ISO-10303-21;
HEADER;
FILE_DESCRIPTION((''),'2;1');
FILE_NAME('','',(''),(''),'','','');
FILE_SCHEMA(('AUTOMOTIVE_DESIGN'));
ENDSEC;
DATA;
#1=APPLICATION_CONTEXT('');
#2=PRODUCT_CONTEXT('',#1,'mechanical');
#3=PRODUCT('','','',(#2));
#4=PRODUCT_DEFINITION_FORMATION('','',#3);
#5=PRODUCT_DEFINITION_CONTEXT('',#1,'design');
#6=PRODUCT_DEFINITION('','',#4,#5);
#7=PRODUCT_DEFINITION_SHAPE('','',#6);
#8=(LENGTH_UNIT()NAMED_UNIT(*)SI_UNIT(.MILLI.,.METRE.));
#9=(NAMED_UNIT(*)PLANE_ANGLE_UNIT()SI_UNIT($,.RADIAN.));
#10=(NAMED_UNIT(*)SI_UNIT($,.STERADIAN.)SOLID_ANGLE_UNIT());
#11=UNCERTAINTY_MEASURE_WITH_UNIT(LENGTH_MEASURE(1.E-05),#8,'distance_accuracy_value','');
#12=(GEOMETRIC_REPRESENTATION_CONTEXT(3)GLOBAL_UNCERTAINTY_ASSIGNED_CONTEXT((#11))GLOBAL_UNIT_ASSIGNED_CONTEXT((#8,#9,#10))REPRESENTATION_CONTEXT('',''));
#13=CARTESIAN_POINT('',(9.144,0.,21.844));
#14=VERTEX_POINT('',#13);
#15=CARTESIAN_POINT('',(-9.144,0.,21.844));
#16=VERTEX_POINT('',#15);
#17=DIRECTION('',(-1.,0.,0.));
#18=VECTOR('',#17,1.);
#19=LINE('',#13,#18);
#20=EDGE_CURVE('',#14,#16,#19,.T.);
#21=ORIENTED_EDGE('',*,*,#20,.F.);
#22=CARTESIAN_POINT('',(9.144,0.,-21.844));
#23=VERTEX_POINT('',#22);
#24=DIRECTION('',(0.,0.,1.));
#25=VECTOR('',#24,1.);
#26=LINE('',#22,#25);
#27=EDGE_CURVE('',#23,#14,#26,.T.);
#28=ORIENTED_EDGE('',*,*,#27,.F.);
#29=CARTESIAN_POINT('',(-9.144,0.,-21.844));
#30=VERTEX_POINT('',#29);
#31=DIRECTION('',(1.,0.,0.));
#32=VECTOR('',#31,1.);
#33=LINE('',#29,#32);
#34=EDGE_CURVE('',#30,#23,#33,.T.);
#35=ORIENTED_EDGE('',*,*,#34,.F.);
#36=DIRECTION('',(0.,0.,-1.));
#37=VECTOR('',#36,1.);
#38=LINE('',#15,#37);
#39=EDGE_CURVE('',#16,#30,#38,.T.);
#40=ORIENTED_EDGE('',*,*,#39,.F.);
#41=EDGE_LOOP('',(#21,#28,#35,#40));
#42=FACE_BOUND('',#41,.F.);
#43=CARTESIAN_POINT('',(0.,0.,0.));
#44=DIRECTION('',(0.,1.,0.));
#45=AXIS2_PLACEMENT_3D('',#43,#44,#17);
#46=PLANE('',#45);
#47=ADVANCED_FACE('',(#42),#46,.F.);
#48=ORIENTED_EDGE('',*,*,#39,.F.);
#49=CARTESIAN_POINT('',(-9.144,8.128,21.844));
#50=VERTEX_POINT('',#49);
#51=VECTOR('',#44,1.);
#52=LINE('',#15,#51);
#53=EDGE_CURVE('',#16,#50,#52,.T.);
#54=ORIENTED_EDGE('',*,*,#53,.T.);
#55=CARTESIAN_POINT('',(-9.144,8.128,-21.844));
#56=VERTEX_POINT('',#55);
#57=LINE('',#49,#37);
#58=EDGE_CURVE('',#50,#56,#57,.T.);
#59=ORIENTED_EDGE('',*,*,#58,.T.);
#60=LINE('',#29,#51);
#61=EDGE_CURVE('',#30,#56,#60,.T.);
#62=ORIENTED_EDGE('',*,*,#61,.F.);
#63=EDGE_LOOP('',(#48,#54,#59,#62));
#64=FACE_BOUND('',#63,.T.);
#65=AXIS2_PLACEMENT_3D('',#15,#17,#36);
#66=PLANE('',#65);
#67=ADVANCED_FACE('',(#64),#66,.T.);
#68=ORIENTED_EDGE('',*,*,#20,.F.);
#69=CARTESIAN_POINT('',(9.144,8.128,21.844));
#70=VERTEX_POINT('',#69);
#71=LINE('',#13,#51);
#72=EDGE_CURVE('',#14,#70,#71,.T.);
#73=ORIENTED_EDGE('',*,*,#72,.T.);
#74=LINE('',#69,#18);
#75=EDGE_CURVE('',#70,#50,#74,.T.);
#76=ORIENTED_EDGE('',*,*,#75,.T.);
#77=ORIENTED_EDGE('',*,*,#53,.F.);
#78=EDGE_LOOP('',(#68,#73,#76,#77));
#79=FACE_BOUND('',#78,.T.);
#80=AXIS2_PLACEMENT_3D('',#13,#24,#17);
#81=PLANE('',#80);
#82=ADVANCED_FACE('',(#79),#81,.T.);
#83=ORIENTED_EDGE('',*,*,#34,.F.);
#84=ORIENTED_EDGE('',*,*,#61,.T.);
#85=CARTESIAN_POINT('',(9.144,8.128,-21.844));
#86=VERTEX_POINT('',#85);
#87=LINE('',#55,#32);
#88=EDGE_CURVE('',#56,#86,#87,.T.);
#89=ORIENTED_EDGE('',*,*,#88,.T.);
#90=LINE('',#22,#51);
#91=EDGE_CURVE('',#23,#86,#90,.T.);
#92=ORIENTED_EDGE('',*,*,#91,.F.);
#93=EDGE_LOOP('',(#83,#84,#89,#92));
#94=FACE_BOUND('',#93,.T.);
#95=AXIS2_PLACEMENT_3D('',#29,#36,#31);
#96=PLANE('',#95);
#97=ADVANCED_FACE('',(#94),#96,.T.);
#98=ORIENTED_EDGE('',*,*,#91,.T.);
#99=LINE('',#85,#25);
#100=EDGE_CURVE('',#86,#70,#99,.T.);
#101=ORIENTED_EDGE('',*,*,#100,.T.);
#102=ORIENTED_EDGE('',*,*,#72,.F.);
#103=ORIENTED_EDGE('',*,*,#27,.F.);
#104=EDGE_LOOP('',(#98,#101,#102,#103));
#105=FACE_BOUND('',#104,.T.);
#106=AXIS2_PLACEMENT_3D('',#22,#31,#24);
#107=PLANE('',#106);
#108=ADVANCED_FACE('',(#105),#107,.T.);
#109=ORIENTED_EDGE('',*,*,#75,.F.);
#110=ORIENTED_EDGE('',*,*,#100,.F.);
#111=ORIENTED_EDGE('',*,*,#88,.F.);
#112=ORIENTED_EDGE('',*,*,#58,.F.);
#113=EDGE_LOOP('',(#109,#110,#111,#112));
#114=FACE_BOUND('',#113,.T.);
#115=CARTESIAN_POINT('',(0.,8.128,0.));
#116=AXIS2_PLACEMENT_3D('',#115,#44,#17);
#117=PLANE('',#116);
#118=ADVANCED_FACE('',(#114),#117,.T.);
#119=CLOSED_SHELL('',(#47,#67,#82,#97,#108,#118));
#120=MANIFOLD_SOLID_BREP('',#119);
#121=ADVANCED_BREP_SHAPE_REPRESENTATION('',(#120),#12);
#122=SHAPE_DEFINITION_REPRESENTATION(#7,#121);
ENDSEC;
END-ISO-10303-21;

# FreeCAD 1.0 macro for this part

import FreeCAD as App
import Part
import Sketcher
Q = App.Units.Quantity


def add_polygon(sketch, points):
    """Adds a closed chain of lines whose ends are joined by coincident constraints."""
    first, n = sketch.GeometryCount, len(points)
    for a, b in zip(points, points[1:] + points[:1]):
        sketch.addGeometry(Part.LineSegment(App.Vector(*a, 0), App.Vector(*b, 0)), False)
    for i in range(n):
        sketch.addConstraint(Sketcher.Constraint("Coincident", first + i, 2, first + (i + 1) % n, 1))

doc = App.newDocument("Part")
body = doc.addObject("PartDesign::Body", "Body")

# Sketch on XZ plane
sketch1 = body.newObject("Sketcher::SketchObject", "Sketch")
sketch1.AttachmentSupport = (doc.getObject("XZ_Plane"), [""])
sketch1.MapMode = "FlatFace"
add_polygon(sketch1, [(-9, 22), (9, 22), (9, -22), (-9, -22)])  # lines 0-3
sketch1.addConstraint([
    Sketcher.Constraint("Horizontal", 0),
    Sketcher.Constraint("Vertical", 1),
    Sketcher.Constraint("Horizontal", 2),
    Sketcher.Constraint("Vertical", 3),
    Sketcher.Constraint("Symmetric", 0, 2, 2, 2, -1, 1),
    Sketcher.Constraint("DistanceX", 0, 1, 0, 2, Q("0.72 in")),
    Sketcher.Constraint("DistanceY", 1, 2, 1, 1, Q("1.72 in")),
])
pad1 = body.newObject("PartDesign::Pad", "Pad")
pad1.Profile = sketch1
pad1.Length = Q("0.32 in")
pad1.Reversed = True

doc.recompute()
